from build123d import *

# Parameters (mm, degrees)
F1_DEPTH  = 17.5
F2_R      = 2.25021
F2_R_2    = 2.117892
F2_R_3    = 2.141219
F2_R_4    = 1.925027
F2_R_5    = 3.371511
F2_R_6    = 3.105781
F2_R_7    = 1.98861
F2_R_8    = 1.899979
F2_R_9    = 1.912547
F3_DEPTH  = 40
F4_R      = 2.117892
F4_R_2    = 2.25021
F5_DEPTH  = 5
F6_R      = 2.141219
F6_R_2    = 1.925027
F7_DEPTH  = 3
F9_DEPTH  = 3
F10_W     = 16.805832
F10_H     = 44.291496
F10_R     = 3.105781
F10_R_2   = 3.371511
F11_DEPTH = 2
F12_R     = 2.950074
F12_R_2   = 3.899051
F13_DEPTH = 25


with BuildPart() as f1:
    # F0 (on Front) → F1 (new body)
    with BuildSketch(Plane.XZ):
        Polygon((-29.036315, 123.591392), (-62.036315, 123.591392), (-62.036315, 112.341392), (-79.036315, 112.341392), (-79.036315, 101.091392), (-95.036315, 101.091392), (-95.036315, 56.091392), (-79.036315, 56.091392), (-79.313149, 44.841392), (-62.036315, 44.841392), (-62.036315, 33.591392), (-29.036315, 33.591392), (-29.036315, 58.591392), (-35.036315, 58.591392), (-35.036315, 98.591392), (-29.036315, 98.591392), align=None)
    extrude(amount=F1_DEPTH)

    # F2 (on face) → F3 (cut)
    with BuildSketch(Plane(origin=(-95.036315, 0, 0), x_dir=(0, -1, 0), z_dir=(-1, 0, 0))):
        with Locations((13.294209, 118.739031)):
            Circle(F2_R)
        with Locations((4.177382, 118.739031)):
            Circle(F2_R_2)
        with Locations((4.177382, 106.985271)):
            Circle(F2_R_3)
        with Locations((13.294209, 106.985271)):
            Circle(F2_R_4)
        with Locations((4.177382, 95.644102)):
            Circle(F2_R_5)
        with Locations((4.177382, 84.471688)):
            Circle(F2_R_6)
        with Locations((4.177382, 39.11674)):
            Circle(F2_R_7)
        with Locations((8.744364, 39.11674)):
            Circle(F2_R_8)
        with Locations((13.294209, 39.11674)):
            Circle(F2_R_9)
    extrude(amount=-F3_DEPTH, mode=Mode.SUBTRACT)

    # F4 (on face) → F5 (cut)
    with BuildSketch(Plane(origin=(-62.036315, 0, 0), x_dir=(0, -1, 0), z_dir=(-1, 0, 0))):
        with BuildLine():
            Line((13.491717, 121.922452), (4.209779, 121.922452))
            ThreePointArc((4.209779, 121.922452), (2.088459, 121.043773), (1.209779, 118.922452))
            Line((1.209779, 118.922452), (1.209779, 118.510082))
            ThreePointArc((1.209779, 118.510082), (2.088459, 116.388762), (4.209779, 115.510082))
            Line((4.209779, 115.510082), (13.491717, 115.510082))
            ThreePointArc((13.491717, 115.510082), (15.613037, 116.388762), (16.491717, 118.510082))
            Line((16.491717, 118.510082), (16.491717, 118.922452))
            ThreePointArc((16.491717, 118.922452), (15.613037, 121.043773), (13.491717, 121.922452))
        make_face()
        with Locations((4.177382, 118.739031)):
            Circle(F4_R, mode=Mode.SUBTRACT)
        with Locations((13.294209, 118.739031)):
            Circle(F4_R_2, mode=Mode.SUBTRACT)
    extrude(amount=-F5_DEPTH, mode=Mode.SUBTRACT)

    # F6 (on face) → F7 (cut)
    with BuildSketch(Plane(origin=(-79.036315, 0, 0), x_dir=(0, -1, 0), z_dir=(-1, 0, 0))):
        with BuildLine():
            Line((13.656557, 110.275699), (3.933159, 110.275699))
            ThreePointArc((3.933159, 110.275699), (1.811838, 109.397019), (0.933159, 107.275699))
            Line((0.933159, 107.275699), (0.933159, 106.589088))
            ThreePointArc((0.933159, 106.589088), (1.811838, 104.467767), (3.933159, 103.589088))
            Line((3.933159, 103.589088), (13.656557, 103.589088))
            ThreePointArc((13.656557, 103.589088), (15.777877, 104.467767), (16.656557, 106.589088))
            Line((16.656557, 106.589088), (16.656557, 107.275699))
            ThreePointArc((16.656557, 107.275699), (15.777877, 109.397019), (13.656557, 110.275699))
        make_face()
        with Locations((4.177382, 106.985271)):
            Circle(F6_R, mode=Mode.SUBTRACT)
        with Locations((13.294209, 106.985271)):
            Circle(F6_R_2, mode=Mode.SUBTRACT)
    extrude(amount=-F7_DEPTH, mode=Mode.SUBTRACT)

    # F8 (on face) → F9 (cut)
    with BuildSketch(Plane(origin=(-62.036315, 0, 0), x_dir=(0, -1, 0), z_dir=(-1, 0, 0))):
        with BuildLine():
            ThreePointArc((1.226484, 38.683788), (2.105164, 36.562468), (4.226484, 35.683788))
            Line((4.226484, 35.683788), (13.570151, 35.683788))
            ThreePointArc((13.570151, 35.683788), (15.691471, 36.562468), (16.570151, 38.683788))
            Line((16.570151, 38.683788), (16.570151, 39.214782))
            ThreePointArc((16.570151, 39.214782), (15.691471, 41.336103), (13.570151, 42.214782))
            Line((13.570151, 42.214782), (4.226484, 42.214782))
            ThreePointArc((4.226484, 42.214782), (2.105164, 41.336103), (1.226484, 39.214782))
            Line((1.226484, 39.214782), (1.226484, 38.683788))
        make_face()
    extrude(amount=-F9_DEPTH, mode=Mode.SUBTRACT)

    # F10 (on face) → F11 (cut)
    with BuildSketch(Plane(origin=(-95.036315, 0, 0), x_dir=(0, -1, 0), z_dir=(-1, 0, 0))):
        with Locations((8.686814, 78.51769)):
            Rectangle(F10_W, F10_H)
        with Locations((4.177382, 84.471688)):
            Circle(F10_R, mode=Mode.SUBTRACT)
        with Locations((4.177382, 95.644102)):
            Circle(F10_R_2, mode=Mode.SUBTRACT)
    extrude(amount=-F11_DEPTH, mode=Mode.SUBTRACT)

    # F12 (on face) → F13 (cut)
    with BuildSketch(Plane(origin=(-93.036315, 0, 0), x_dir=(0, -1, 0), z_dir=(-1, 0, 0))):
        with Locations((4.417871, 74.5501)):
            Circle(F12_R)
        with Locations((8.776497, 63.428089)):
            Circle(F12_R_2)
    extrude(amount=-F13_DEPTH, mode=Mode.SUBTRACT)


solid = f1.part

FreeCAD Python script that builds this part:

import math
import FreeCAD as App
import Part
import Sketcher

V = App.Vector
Q = App.Units.Quantity

doc = App.newDocument("Part")
body = doc.addObject("PartDesign::Body", "Body")

sketch1 = body.newObject("Sketcher::SketchObject", "Sketch")
sketch1.AttachmentSupport = (doc.getObject("XZ_Plane"), [""])
sketch1.MapMode = "FlatFace"
sketch1.addGeometry(Part.LineSegment(V(-29, 124, 0), V(-62, 124, 0)), False)
sketch1.addGeometry(Part.LineSegment(V(-62, 124, 0), V(-62, 112, 0)), False)
sketch1.addGeometry(Part.LineSegment(V(-62, 112, 0), V(-79, 112, 0)), False)
sketch1.addGeometry(Part.LineSegment(V(-79, 112, 0), V(-79, 101, 0)), False)
sketch1.addGeometry(Part.LineSegment(V(-79, 101, 0), V(-95, 101, 0)), False)
sketch1.addGeometry(Part.LineSegment(V(-95, 101, 0), V(-95, 56, 0)), False)
sketch1.addGeometry(Part.LineSegment(V(-95, 56, 0), V(-79, 56, 0)), False)
sketch1.addGeometry(Part.LineSegment(V(-79, 56, 0), V(-79, 45, 0)), False)
sketch1.addGeometry(Part.LineSegment(V(-79, 45, 0), V(-62, 45, 0)), False)
sketch1.addGeometry(Part.LineSegment(V(-62, 45, 0), V(-62, 34, 0)), False)
sketch1.addGeometry(Part.LineSegment(V(-62, 34, 0), V(-29, 34, 0)), False)
sketch1.addGeometry(Part.LineSegment(V(-29, 34, 0), V(-29, 59, 0)), False)
sketch1.addGeometry(Part.LineSegment(V(-29, 59, 0), V(-35, 59, 0)), False)
sketch1.addGeometry(Part.LineSegment(V(-35, 59, 0), V(-35, 99, 0)), False)
sketch1.addGeometry(Part.LineSegment(V(-35, 99, 0), V(-29, 99, 0)), False)
sketch1.addGeometry(Part.LineSegment(V(-29, 99, 0), V(-29, 124, 0)), False)
sketch1.addConstraint(Sketcher.Constraint("Coincident", 0, 2, 1, 1))
sketch1.addConstraint(Sketcher.Constraint("Coincident", 1, 2, 2, 1))
sketch1.addConstraint(Sketcher.Constraint("Coincident", 2, 2, 3, 1))
sketch1.addConstraint(Sketcher.Constraint("Coincident", 3, 2, 4, 1))
sketch1.addConstraint(Sketcher.Constraint("Coincident", 4, 2, 5, 1))
sketch1.addConstraint(Sketcher.Constraint("Coincident", 5, 2, 6, 1))
sketch1.addConstraint(Sketcher.Constraint("Coincident", 6, 2, 7, 1))
sketch1.addConstraint(Sketcher.Constraint("Coincident", 7, 2, 8, 1))
sketch1.addConstraint(Sketcher.Constraint("Coincident", 8, 2, 9, 1))
sketch1.addConstraint(Sketcher.Constraint("Coincident", 9, 2, 10, 1))
sketch1.addConstraint(Sketcher.Constraint("Coincident", 10, 2, 11, 1))
sketch1.addConstraint(Sketcher.Constraint("Coincident", 11, 2, 12, 1))
sketch1.addConstraint(Sketcher.Constraint("Coincident", 12, 2, 13, 1))
sketch1.addConstraint(Sketcher.Constraint("Coincident", 13, 2, 14, 1))
sketch1.addConstraint(Sketcher.Constraint("Coincident", 14, 2, 15, 1))
sketch1.addConstraint(Sketcher.Constraint("Coincident", 15, 2, 0, 1))
sketch1.addConstraint(Sketcher.Constraint("Horizontal", 0))
sketch1.addConstraint(Sketcher.Constraint("Vertical", 1))
sketch1.addConstraint(Sketcher.Constraint("Horizontal", 2))
sketch1.addConstraint(Sketcher.Constraint("Vertical", 3))
sketch1.addConstraint(Sketcher.Constraint("Horizontal", 4))
sketch1.addConstraint(Sketcher.Constraint("Vertical", 5))
sketch1.addConstraint(Sketcher.Constraint("Horizontal", 6))
sketch1.addConstraint(Sketcher.Constraint("Horizontal", 8))
sketch1.addConstraint(Sketcher.Constraint("Vertical", 9))
sketch1.addConstraint(Sketcher.Constraint("Horizontal", 10))
sketch1.addConstraint(Sketcher.Constraint("Vertical", 11))
sketch1.addConstraint(Sketcher.Constraint("Horizontal", 12))
sketch1.addConstraint(Sketcher.Constraint("Vertical", 13))
sketch1.addConstraint(Sketcher.Constraint("Horizontal", 14))
sketch1.addConstraint(Sketcher.Constraint("Vertical", 15))
sketch1.addConstraint(Sketcher.Constraint("Vertical", 3, 2, 6, 2))
sketch1.addConstraint(Sketcher.Constraint("Vertical", 1, 2, 8, 2))
sketch1.addConstraint(Sketcher.Constraint("Vertical", 11, 2, 14, 2))
sketch1.addConstraint(Sketcher.Constraint("Equal", 1, 3))
sketch1.addConstraint(Sketcher.Constraint("Equal", 3, 9))
sketch1.addConstraint(Sketcher.Constraint("Equal", 11, 15))
sketch1.addConstraint(Sketcher.Constraint("DistanceX", 0, 2, 0, 1, Q("33 mm")))
sketch1.addConstraint(Sketcher.Constraint("DistanceX", 2, 2, 2, 1, Q("17 mm")))
sketch1.addConstraint(Sketcher.Constraint("DistanceX", 4, 2, 4, 1, Q("16 mm")))
sketch1.addConstraint(Sketcher.Constraint("DistanceX", 12, 2, 12, 1, Q("6 mm")))
sketch1.addConstraint(Sketcher.Constraint("DistanceY", 5, 2, 5, 1, Q("45 mm")))
sketch1.addConstraint(Sketcher.Constraint("DistanceY", 11, 1, 11, 2, Q("25 mm")))
sketch1.addConstraint(Sketcher.Constraint("DistanceY", 13, 1, 13, 2, Q("40 mm")))
sketch1.addConstraint(Sketcher.Constraint("DistanceY", 1, 2, 1, 1, Q("11.25 mm")))
sketch1.addConstraint(Sketcher.Constraint("DistanceX", 8, 1, 8, 2, Q("17.276834 mm")))
sketch1.addConstraint(Sketcher.Constraint("DistanceY", -1, 1, 0, 2, Q("123.591392 mm")))
sketch1.addConstraint(Sketcher.Constraint("DistanceX", 7, 2, -1, 1, Q("79.313149 mm")))
pad1 = body.newObject("PartDesign::Pad", "Pad")
pad1.Profile = sketch1
pad1.Length = 17.5

sketch2 = body.newObject("Sketcher::SketchObject", "Sketch001")
sketch2.AttachmentSupport = (doc.getObject("YZ_Plane"), [""])
sketch2.MapMode = "FlatFace"
sketch2.AttachmentOffset = App.Placement(V(0, 0, -95.036315), App.Rotation())
sketch2.addGeometry(Part.Circle(V(-13.3, 118.7, 0), V(0, 0, 1), 2.3), False)
sketch2.addGeometry(Part.Circle(V(-4.2, 118.7, 0), V(0, 0, 1), 2.1), False)
sketch2.addGeometry(Part.Circle(V(-4.2, 107, 0), V(0, 0, 1), 2.1), False)
sketch2.addGeometry(Part.Circle(V(-13.3, 107, 0), V(0, 0, 1), 1.9), False)
sketch2.addGeometry(Part.Circle(V(-4.2, 95.6, 0), V(0, 0, 1), 3.4), False)
sketch2.addGeometry(Part.Circle(V(-4.2, 84.5, 0), V(0, 0, 1), 3.1), False)
sketch2.addGeometry(Part.Circle(V(-4.2, 39.1, 0), V(0, 0, 1), 2), False)
sketch2.addGeometry(Part.Circle(V(-8.7, 39.1, 0), V(0, 0, 1), 1.9), False)
sketch2.addGeometry(Part.Circle(V(-13.3, 39.1, 0), V(0, 0, 1), 1.9), False)
sketch2.addConstraint(Sketcher.Constraint("Horizontal", 0, 3, 1, 3))
sketch2.addConstraint(Sketcher.Constraint("Horizontal", 2, 3, 3, 3))
sketch2.addConstraint(Sketcher.Constraint("Horizontal", 6, 3, 7, 3))
sketch2.addConstraint(Sketcher.Constraint("Horizontal", 7, 3, 8, 3))
sketch2.addConstraint(Sketcher.Constraint("Vertical", 1, 3, 2, 3))
sketch2.addConstraint(Sketcher.Constraint("Vertical", 0, 3, 3, 3))
sketch2.addConstraint(Sketcher.Constraint("Vertical", 2, 3, 4, 3))
sketch2.addConstraint(Sketcher.Constraint("Vertical", 4, 3, 5, 3))
sketch2.addConstraint(Sketcher.Constraint("Vertical", 5, 3, 6, 3))
sketch2.addConstraint(Sketcher.Constraint("Vertical", 3, 3, 8, 3))
sketch2.addConstraint(Sketcher.Constraint("Diameter", 0, Q("4.50042 mm")))
sketch2.addConstraint(Sketcher.Constraint("Diameter", 5, Q("6.211562 mm")))
sketch2.addConstraint(Sketcher.Constraint("Diameter", 6, Q("3.97722 mm")))
sketch2.addConstraint(Sketcher.Constraint("Diameter", 7, Q("3.799958 mm")))
sketch2.addConstraint(Sketcher.Constraint("Diameter", 1, Q("4.235784 mm")))
sketch2.addConstraint(Sketcher.Constraint("Diameter", 2, Q("4.282438 mm")))
sketch2.addConstraint(Sketcher.Constraint("Diameter", 3, Q("3.850054 mm")))
sketch2.addConstraint(Sketcher.Constraint("Diameter", 4, Q("6.743022 mm")))
sketch2.addConstraint(Sketcher.Constraint("Diameter", 8, Q("3.825094 mm")))
sketch2.addConstraint(Sketcher.Constraint("DistanceX", 0, 3, -1, 1, Q("13.294209 mm")))
sketch2.addConstraint(Sketcher.Constraint("DistanceY", -1, 1, 0, 3, Q("118.739031 mm")))
sketch2.addConstraint(Sketcher.Constraint("DistanceX", 1, 3, -1, 1, Q("4.177382 mm")))
sketch2.addConstraint(Sketcher.Constraint("DistanceY", -1, 1, 2, 3, Q("106.985271 mm")))
sketch2.addConstraint(Sketcher.Constraint("DistanceY", -1, 1, 5, 3, Q("84.471688 mm")))
sketch2.addConstraint(Sketcher.Constraint("DistanceY", -1, 1, 6, 3, Q("39.11674 mm")))
sketch2.addConstraint(Sketcher.Constraint("DistanceY", 4, 3, 2, 3, Q("11.341169 mm")))
sketch2.addConstraint(Sketcher.Constraint("DistanceX", 7, 3, 6, 3, Q("4.566982 mm")))
pocket1 = body.newObject("PartDesign::Pocket", "Pocket")
pocket1.Profile = sketch2
pocket1.Length = 40
pocket1.Reversed = True

sketch3 = body.newObject("Sketcher::SketchObject", "Sketch002")
sketch3.AttachmentSupport = (doc.getObject("YZ_Plane"), [""])
sketch3.MapMode = "FlatFace"
sketch3.AttachmentOffset = App.Placement(V(0, 0, -62.036315), App.Rotation())
sketch3.addGeometry(Part.LineSegment(V(-13.49, 121.92, 0), V(-4.21, 121.92, 0)), False)
sketch3.addGeometry(Part.ArcOfCircle(Part.Circle(V(-4.21, 118.92, 0), V(0, 0, 1), 3), math.radians(0), math.radians(90)), False)
sketch3.addGeometry(Part.LineSegment(V(-1.21, 118.92, 0), V(-1.21, 118.51, 0)), False)
sketch3.addGeometry(Part.ArcOfCircle(Part.Circle(V(-4.21, 118.51, 0), V(0, 0, 1), 3), math.radians(-90), math.radians(0)), False)
sketch3.addGeometry(Part.LineSegment(V(-4.21, 115.51, 0), V(-13.49, 115.51, 0)), False)
sketch3.addGeometry(Part.ArcOfCircle(Part.Circle(V(-13.49, 118.51, 0), V(0, 0, 1), 3), math.radians(-180), math.radians(-90)), False)
sketch3.addGeometry(Part.LineSegment(V(-16.49, 118.51, 0), V(-16.49, 118.92, 0)), False)
sketch3.addGeometry(Part.ArcOfCircle(Part.Circle(V(-13.49, 118.92, 0), V(0, 0, 1), 3), math.radians(90), math.radians(180)), False)
sketch3.addGeometry(Part.Circle(V(-4.18, 118.74, 0), V(0, 0, 1), 2.12), False)
sketch3.addGeometry(Part.Circle(V(-13.29, 118.74, 0), V(0, 0, 1), 2.25), False)
sketch3.addConstraint(Sketcher.Constraint("Tangent", 0, 2, 1, 2))
sketch3.addConstraint(Sketcher.Constraint("Tangent", 1, 1, 2, 1))
sketch3.addConstraint(Sketcher.Constraint("Tangent", 2, 2, 3, 2))
sketch3.addConstraint(Sketcher.Constraint("Tangent", 3, 1, 4, 1))
sketch3.addConstraint(Sketcher.Constraint("Tangent", 4, 2, 5, 2))
sketch3.addConstraint(Sketcher.Constraint("Tangent", 5, 1, 6, 1))
sketch3.addConstraint(Sketcher.Constraint("Tangent", 6, 2, 7, 2))
sketch3.addConstraint(Sketcher.Constraint("Tangent", 7, 1, 0, 1))
sketch3.addConstraint(Sketcher.Constraint("Horizontal", 0))
sketch3.addConstraint(Sketcher.Constraint("Vertical", 2))
sketch3.addConstraint(Sketcher.Constraint("Horizontal", 4))
sketch3.addConstraint(Sketcher.Constraint("Vertical", 6))
sketch3.addConstraint(Sketcher.Constraint("Equal", 1, 3))
sketch3.addConstraint(Sketcher.Constraint("Equal", 3, 5))
sketch3.addConstraint(Sketcher.Constraint("Equal", 5, 7))
sketch3.addConstraint(Sketcher.Constraint("Horizontal", 8, 3, 9, 3))
sketch3.addConstraint(Sketcher.Constraint("Radius", 1, Q("2.999999 mm")))
sketch3.addConstraint(Sketcher.Constraint("Diameter", 9, Q("4.50042 mm")))
sketch3.addConstraint(Sketcher.Constraint("Diameter", 8, Q("4.235784 mm")))
sketch3.addConstraint(Sketcher.Constraint("DistanceY", 2, 2, 2, 1, Q("0.41237 mm")))
sketch3.addConstraint(Sketcher.Constraint("DistanceX", 3, 3, 8, 3, Q("0.032398 mm")))
sketch3.addConstraint(Sketcher.Constraint("DistanceX", 0, 1, 0, 2, Q("9.281938 mm")))
sketch3.addConstraint(Sketcher.Constraint("DistanceX", 1, 3, -1, 1, Q("4.209778 mm")))
sketch3.addConstraint(Sketcher.Constraint("DistanceY", -1, 1, 8, 3, Q("118.739031 mm")))
sketch3.addConstraint(Sketcher.Constraint("DistanceX", 9, 3, -1, 1, Q("13.294209 mm")))
sketch3.addConstraint(Sketcher.Constraint("DistanceY", -1, 1, 2, 2, Q("118.510082 mm")))
pocket2 = body.newObject("PartDesign::Pocket", "Pocket001")
pocket2.Profile = sketch3
pocket2.Length = 5
pocket2.Reversed = True

sketch4 = body.newObject("Sketcher::SketchObject", "Sketch003")
sketch4.AttachmentSupport = (doc.getObject("YZ_Plane"), [""])
sketch4.MapMode = "FlatFace"
sketch4.AttachmentOffset = App.Placement(V(0, 0, -79.036315), App.Rotation())
sketch4.addGeometry(Part.LineSegment(V(-13.7, 110.3, 0), V(-3.9, 110.3, 0)), False)
sketch4.addGeometry(Part.ArcOfCircle(Part.Circle(V(-3.9, 107.3, 0), V(0, 0, 1), 3), math.radians(0), math.radians(90)), False)
sketch4.addGeometry(Part.LineSegment(V(-0.9, 107.3, 0), V(-0.9, 106.6, 0)), False)
sketch4.addGeometry(Part.ArcOfCircle(Part.Circle(V(-3.9, 106.6, 0), V(0, 0, 1), 3), math.radians(-90), math.radians(0)), False)
sketch4.addGeometry(Part.LineSegment(V(-3.9, 103.6, 0), V(-13.7, 103.6, 0)), False)
sketch4.addGeometry(Part.ArcOfCircle(Part.Circle(V(-13.7, 106.6, 0), V(0, 0, 1), 3), math.radians(180), math.radians(270)), False)
sketch4.addGeometry(Part.LineSegment(V(-16.7, 106.6, 0), V(-16.7, 107.3, 0)), False)
sketch4.addGeometry(Part.ArcOfCircle(Part.Circle(V(-13.7, 107.3, 0), V(0, 0, 1), 3), math.radians(90), math.radians(180)), False)
sketch4.addGeometry(Part.Circle(V(-4.2, 107, 0), V(0, 0, 1), 2.1), False)
sketch4.addGeometry(Part.Circle(V(-13.3, 107, 0), V(0, 0, 1), 1.9), False)
sketch4.addConstraint(Sketcher.Constraint("Tangent", 0, 2, 1, 2))
sketch4.addConstraint(Sketcher.Constraint("Tangent", 1, 1, 2, 1))
sketch4.addConstraint(Sketcher.Constraint("Tangent", 2, 2, 3, 2))
sketch4.addConstraint(Sketcher.Constraint("Tangent", 3, 1, 4, 1))
sketch4.addConstraint(Sketcher.Constraint("Tangent", 4, 2, 5, 2))
sketch4.addConstraint(Sketcher.Constraint("Tangent", 5, 1, 6, 1))
sketch4.addConstraint(Sketcher.Constraint("Tangent", 6, 2, 7, 2))
sketch4.addConstraint(Sketcher.Constraint("Tangent", 7, 1, 0, 1))
sketch4.addConstraint(Sketcher.Constraint("Horizontal", 0))
sketch4.addConstraint(Sketcher.Constraint("Vertical", 2))
sketch4.addConstraint(Sketcher.Constraint("Horizontal", 4))
sketch4.addConstraint(Sketcher.Constraint("Vertical", 6))
sketch4.addConstraint(Sketcher.Constraint("Equal", 1, 3))
sketch4.addConstraint(Sketcher.Constraint("Equal", 3, 5))
sketch4.addConstraint(Sketcher.Constraint("Equal", 5, 7))
sketch4.addConstraint(Sketcher.Constraint("Horizontal", 8, 3, 9, 3))
sketch4.addConstraint(Sketcher.Constraint("Radius", 1, Q("2.999999 mm")))
sketch4.addConstraint(Sketcher.Constraint("Diameter", 8, Q("4.282438 mm")))
sketch4.addConstraint(Sketcher.Constraint("Diameter", 9, Q("3.850054 mm")))
sketch4.addConstraint(Sketcher.Constraint("DistanceY", 2, 2, 2, 1, Q("0.686611 mm")))
sketch4.addConstraint(Sketcher.Constraint("DistanceY", -1, 1, 1, 3, Q("107.2757 mm")))
sketch4.addConstraint(Sketcher.Constraint("DistanceX", 5, 3, 3, 3, Q("9.723401 mm")))
sketch4.addConstraint(Sketcher.Constraint("DistanceX", 1, 3, -1, 1, Q("3.933158 mm")))
sketch4.addConstraint(Sketcher.Constraint("DistanceX", 8, 3, -1, 1, Q("4.177382 mm")))
sketch4.addConstraint(Sketcher.Constraint("DistanceY", -1, 1, 8, 3, Q("106.985271 mm")))
sketch4.addConstraint(Sketcher.Constraint("DistanceX", 9, 3, -1, 1, Q("13.294209 mm")))
pocket3 = body.newObject("PartDesign::Pocket", "Pocket002")
pocket3.Profile = sketch4
pocket3.Length = 3
pocket3.Reversed = True

sketch5 = body.newObject("Sketcher::SketchObject", "Sketch004")
sketch5.AttachmentSupport = (doc.getObject("YZ_Plane"), [""])
sketch5.MapMode = "FlatFace"
sketch5.AttachmentOffset = App.Placement(V(0, 0, -62.036315), App.Rotation())
sketch5.addGeometry(Part.ArcOfCircle(Part.Circle(V(-4.2, 38.7, 0), V(0, 0, 1), 3), math.radians(-90), math.radians(0)), False)
sketch5.addGeometry(Part.LineSegment(V(-4.2, 35.7, 0), V(-13.6, 35.7, 0)), False)
sketch5.addGeometry(Part.ArcOfCircle(Part.Circle(V(-13.6, 38.7, 0), V(0, 0, 1), 3), math.radians(-180), math.radians(-90)), False)
sketch5.addGeometry(Part.LineSegment(V(-16.6, 38.7, 0), V(-16.6, 39.2, 0)), False)
sketch5.addGeometry(Part.ArcOfCircle(Part.Circle(V(-13.6, 39.2, 0), V(0, 0, 1), 3), math.radians(90), math.radians(180)), False)
sketch5.addGeometry(Part.LineSegment(V(-13.6, 42.2, 0), V(-4.2, 42.2, 0)), False)
sketch5.addGeometry(Part.ArcOfCircle(Part.Circle(V(-4.2, 39.2, 0), V(0, 0, 1), 3), math.radians(0), math.radians(90)), False)
sketch5.addGeometry(Part.LineSegment(V(-1.2, 39.2, 0), V(-1.2, 38.7, 0)), False)
sketch5.addConstraint(Sketcher.Constraint("Tangent", 0, 1, 1, 1))
sketch5.addConstraint(Sketcher.Constraint("Tangent", 1, 2, 2, 2))
sketch5.addConstraint(Sketcher.Constraint("Tangent", 2, 1, 3, 1))
sketch5.addConstraint(Sketcher.Constraint("Tangent", 3, 2, 4, 2))
sketch5.addConstraint(Sketcher.Constraint("Tangent", 4, 1, 5, 1))
sketch5.addConstraint(Sketcher.Constraint("Tangent", 5, 2, 6, 2))
sketch5.addConstraint(Sketcher.Constraint("Tangent", 6, 1, 7, 1))
sketch5.addConstraint(Sketcher.Constraint("Tangent", 7, 2, 0, 2))
sketch5.addConstraint(Sketcher.Constraint("Horizontal", 1))
sketch5.addConstraint(Sketcher.Constraint("Vertical", 3))
sketch5.addConstraint(Sketcher.Constraint("Horizontal", 5))
sketch5.addConstraint(Sketcher.Constraint("Vertical", 7))
sketch5.addConstraint(Sketcher.Constraint("Equal", 0, 2))
sketch5.addConstraint(Sketcher.Constraint("Equal", 2, 4))
sketch5.addConstraint(Sketcher.Constraint("Equal", 4, 6))
sketch5.addConstraint(Sketcher.Constraint("Radius", 0, Q("3.000001 mm")))
sketch5.addConstraint(Sketcher.Constraint("DistanceX", 1, 2, 1, 1, Q("9.343667 mm")))
sketch5.addConstraint(Sketcher.Constraint("DistanceY", 3, 1, 3, 2, Q("0.530994 mm")))
sketch5.addConstraint(Sketcher.Constraint("DistanceY", -1, 1, 0, 3, Q("38.683789 mm")))
sketch5.addConstraint(Sketcher.Constraint("DistanceX", 2, 3, -1, 1, Q("13.57015 mm")))
pocket4 = body.newObject("PartDesign::Pocket", "Pocket003")
pocket4.Profile = sketch5
pocket4.Length = 3
pocket4.Reversed = True

sketch6 = body.newObject("Sketcher::SketchObject", "Sketch005")
sketch6.AttachmentSupport = (doc.getObject("YZ_Plane"), [""])
sketch6.MapMode = "FlatFace"
sketch6.AttachmentOffset = App.Placement(V(0, 0, -95.036315), App.Rotation())
sketch6.addGeometry(Part.LineSegment(V(-0.3, 100.7, 0), V(-0.3, 56.4, 0)), False)
sketch6.addGeometry(Part.LineSegment(V(-0.3, 56.4, 0), V(-17.1, 56.4, 0)), False)
sketch6.addGeometry(Part.LineSegment(V(-17.1, 56.4, 0), V(-17.1, 100.7, 0)), False)
sketch6.addGeometry(Part.LineSegment(V(-17.1, 100.7, 0), V(-0.3, 100.7, 0)), False)
sketch6.addGeometry(Part.Circle(V(-4.2, 84.5, 0), V(0, 0, 1), 3.1), False)
sketch6.addGeometry(Part.Circle(V(-4.2, 95.6, 0), V(0, 0, 1), 3.4), False)
sketch6.addConstraint(Sketcher.Constraint("Coincident", 0, 2, 1, 1))
sketch6.addConstraint(Sketcher.Constraint("Coincident", 1, 2, 2, 1))
sketch6.addConstraint(Sketcher.Constraint("Coincident", 2, 2, 3, 1))
sketch6.addConstraint(Sketcher.Constraint("Coincident", 3, 2, 0, 1))
sketch6.addConstraint(Sketcher.Constraint("Vertical", 0))
sketch6.addConstraint(Sketcher.Constraint("Horizontal", 1))
sketch6.addConstraint(Sketcher.Constraint("Vertical", 2))
sketch6.addConstraint(Sketcher.Constraint("Horizontal", 3))
sketch6.addConstraint(Sketcher.Constraint("Vertical", 4, 3, 5, 3))
sketch6.addConstraint(Sketcher.Constraint("Diameter", 4, Q("6.211562 mm")))
sketch6.addConstraint(Sketcher.Constraint("Diameter", 5, Q("6.743022 mm")))
sketch6.addConstraint(Sketcher.Constraint("DistanceX", 1, 2, 1, 1, Q("16.805832 mm")))
sketch6.addConstraint(Sketcher.Constraint("DistanceY", 0, 2, 0, 1, Q("44.291496 mm")))
sketch6.addConstraint(Sketcher.Constraint("DistanceX", 4, 3, -1, 1, Q("4.177382 mm")))
sketch6.addConstraint(Sketcher.Constraint("DistanceY", -1, 1, 4, 3, Q("84.471688 mm")))
sketch6.addConstraint(Sketcher.Constraint("DistanceY", -1, 1, 0, 2, Q("56.371942 mm")))
sketch6.addConstraint(Sketcher.Constraint("DistanceX", 1, 2, -1, 1, Q("17.08973 mm")))
sketch6.addConstraint(Sketcher.Constraint("DistanceY", 0, 2, 5, 3, Q("39.27216 mm")))
pocket5 = body.newObject("PartDesign::Pocket", "Pocket004")
pocket5.Profile = sketch6
pocket5.Length = 2
pocket5.Reversed = True

sketch7 = body.newObject("Sketcher::SketchObject", "Sketch006")
sketch7.AttachmentSupport = (doc.getObject("YZ_Plane"), [""])
sketch7.MapMode = "FlatFace"
sketch7.AttachmentOffset = App.Placement(V(0, 0, -93.036315), App.Rotation())
sketch7.addGeometry(Part.Circle(V(-4.4, 74.6, 0), V(0, 0, 1), 3), False)
sketch7.addGeometry(Part.Circle(V(-8.8, 63.4, 0), V(0, 0, 1), 3.9), False)
sketch7.addConstraint(Sketcher.Constraint("Diameter", 0, Q("5.900148 mm")))
sketch7.addConstraint(Sketcher.Constraint("Diameter", 1, Q("7.798102 mm")))
sketch7.addConstraint(Sketcher.Constraint("DistanceY", -1, 1, 0, 3, Q("74.5501 mm")))
sketch7.addConstraint(Sketcher.Constraint("DistanceX", 0, 3, -1, 1, Q("4.417871 mm")))
sketch7.addConstraint(Sketcher.Constraint("DistanceY", -1, 1, 1, 3, Q("63.428089 mm")))
sketch7.addConstraint(Sketcher.Constraint("DistanceX", 1, 3, -1, 1, Q("8.776497 mm")))
pocket6 = body.newObject("PartDesign::Pocket", "Pocket005")
pocket6.Profile = sketch7
pocket6.Length = 25
pocket6.Reversed = True

doc.recompute()
